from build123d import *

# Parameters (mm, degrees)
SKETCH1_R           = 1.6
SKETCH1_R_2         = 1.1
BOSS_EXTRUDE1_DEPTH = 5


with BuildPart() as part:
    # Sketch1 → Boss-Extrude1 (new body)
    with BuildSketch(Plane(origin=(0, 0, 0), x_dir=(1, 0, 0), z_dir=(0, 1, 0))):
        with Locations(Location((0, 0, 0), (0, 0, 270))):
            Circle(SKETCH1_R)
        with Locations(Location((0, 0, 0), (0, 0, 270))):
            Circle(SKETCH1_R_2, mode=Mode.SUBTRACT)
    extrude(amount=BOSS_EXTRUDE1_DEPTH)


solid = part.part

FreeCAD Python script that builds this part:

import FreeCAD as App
import Part
import Sketcher

V = App.Vector
Q = App.Units.Quantity

doc = App.newDocument("Part")
body = doc.addObject("PartDesign::Body", "Body")

# Sketch on XZ plane
sketch1 = body.newObject("Sketcher::SketchObject", "Sketch")
sketch1.AttachmentSupport = (doc.getObject("XZ_Plane"), [""])
sketch1.MapMode = "FlatFace"
sketch1.addGeometry([
    Part.Circle(V(0, 0, 0), V(0, 0, 1), 1.6),
    Part.Circle(V(0, 0, 0), V(0, 0, 1), 1.1),
], False)
sketch1.addConstraint([
    Sketcher.Constraint("Coincident", 0, 3, -1, 1),
    Sketcher.Constraint("Coincident", 1, 3, -1, 1),
    Sketcher.Constraint("Diameter", 0, Q("3.2 mm")),
    Sketcher.Constraint("Diameter", 1, Q("2.2 mm")),
])
pad1 = body.newObject("PartDesign::Pad", "Pad")
pad1.Profile = sketch1
pad1.Length = 5
pad1.Reversed = True

doc.recompute()
